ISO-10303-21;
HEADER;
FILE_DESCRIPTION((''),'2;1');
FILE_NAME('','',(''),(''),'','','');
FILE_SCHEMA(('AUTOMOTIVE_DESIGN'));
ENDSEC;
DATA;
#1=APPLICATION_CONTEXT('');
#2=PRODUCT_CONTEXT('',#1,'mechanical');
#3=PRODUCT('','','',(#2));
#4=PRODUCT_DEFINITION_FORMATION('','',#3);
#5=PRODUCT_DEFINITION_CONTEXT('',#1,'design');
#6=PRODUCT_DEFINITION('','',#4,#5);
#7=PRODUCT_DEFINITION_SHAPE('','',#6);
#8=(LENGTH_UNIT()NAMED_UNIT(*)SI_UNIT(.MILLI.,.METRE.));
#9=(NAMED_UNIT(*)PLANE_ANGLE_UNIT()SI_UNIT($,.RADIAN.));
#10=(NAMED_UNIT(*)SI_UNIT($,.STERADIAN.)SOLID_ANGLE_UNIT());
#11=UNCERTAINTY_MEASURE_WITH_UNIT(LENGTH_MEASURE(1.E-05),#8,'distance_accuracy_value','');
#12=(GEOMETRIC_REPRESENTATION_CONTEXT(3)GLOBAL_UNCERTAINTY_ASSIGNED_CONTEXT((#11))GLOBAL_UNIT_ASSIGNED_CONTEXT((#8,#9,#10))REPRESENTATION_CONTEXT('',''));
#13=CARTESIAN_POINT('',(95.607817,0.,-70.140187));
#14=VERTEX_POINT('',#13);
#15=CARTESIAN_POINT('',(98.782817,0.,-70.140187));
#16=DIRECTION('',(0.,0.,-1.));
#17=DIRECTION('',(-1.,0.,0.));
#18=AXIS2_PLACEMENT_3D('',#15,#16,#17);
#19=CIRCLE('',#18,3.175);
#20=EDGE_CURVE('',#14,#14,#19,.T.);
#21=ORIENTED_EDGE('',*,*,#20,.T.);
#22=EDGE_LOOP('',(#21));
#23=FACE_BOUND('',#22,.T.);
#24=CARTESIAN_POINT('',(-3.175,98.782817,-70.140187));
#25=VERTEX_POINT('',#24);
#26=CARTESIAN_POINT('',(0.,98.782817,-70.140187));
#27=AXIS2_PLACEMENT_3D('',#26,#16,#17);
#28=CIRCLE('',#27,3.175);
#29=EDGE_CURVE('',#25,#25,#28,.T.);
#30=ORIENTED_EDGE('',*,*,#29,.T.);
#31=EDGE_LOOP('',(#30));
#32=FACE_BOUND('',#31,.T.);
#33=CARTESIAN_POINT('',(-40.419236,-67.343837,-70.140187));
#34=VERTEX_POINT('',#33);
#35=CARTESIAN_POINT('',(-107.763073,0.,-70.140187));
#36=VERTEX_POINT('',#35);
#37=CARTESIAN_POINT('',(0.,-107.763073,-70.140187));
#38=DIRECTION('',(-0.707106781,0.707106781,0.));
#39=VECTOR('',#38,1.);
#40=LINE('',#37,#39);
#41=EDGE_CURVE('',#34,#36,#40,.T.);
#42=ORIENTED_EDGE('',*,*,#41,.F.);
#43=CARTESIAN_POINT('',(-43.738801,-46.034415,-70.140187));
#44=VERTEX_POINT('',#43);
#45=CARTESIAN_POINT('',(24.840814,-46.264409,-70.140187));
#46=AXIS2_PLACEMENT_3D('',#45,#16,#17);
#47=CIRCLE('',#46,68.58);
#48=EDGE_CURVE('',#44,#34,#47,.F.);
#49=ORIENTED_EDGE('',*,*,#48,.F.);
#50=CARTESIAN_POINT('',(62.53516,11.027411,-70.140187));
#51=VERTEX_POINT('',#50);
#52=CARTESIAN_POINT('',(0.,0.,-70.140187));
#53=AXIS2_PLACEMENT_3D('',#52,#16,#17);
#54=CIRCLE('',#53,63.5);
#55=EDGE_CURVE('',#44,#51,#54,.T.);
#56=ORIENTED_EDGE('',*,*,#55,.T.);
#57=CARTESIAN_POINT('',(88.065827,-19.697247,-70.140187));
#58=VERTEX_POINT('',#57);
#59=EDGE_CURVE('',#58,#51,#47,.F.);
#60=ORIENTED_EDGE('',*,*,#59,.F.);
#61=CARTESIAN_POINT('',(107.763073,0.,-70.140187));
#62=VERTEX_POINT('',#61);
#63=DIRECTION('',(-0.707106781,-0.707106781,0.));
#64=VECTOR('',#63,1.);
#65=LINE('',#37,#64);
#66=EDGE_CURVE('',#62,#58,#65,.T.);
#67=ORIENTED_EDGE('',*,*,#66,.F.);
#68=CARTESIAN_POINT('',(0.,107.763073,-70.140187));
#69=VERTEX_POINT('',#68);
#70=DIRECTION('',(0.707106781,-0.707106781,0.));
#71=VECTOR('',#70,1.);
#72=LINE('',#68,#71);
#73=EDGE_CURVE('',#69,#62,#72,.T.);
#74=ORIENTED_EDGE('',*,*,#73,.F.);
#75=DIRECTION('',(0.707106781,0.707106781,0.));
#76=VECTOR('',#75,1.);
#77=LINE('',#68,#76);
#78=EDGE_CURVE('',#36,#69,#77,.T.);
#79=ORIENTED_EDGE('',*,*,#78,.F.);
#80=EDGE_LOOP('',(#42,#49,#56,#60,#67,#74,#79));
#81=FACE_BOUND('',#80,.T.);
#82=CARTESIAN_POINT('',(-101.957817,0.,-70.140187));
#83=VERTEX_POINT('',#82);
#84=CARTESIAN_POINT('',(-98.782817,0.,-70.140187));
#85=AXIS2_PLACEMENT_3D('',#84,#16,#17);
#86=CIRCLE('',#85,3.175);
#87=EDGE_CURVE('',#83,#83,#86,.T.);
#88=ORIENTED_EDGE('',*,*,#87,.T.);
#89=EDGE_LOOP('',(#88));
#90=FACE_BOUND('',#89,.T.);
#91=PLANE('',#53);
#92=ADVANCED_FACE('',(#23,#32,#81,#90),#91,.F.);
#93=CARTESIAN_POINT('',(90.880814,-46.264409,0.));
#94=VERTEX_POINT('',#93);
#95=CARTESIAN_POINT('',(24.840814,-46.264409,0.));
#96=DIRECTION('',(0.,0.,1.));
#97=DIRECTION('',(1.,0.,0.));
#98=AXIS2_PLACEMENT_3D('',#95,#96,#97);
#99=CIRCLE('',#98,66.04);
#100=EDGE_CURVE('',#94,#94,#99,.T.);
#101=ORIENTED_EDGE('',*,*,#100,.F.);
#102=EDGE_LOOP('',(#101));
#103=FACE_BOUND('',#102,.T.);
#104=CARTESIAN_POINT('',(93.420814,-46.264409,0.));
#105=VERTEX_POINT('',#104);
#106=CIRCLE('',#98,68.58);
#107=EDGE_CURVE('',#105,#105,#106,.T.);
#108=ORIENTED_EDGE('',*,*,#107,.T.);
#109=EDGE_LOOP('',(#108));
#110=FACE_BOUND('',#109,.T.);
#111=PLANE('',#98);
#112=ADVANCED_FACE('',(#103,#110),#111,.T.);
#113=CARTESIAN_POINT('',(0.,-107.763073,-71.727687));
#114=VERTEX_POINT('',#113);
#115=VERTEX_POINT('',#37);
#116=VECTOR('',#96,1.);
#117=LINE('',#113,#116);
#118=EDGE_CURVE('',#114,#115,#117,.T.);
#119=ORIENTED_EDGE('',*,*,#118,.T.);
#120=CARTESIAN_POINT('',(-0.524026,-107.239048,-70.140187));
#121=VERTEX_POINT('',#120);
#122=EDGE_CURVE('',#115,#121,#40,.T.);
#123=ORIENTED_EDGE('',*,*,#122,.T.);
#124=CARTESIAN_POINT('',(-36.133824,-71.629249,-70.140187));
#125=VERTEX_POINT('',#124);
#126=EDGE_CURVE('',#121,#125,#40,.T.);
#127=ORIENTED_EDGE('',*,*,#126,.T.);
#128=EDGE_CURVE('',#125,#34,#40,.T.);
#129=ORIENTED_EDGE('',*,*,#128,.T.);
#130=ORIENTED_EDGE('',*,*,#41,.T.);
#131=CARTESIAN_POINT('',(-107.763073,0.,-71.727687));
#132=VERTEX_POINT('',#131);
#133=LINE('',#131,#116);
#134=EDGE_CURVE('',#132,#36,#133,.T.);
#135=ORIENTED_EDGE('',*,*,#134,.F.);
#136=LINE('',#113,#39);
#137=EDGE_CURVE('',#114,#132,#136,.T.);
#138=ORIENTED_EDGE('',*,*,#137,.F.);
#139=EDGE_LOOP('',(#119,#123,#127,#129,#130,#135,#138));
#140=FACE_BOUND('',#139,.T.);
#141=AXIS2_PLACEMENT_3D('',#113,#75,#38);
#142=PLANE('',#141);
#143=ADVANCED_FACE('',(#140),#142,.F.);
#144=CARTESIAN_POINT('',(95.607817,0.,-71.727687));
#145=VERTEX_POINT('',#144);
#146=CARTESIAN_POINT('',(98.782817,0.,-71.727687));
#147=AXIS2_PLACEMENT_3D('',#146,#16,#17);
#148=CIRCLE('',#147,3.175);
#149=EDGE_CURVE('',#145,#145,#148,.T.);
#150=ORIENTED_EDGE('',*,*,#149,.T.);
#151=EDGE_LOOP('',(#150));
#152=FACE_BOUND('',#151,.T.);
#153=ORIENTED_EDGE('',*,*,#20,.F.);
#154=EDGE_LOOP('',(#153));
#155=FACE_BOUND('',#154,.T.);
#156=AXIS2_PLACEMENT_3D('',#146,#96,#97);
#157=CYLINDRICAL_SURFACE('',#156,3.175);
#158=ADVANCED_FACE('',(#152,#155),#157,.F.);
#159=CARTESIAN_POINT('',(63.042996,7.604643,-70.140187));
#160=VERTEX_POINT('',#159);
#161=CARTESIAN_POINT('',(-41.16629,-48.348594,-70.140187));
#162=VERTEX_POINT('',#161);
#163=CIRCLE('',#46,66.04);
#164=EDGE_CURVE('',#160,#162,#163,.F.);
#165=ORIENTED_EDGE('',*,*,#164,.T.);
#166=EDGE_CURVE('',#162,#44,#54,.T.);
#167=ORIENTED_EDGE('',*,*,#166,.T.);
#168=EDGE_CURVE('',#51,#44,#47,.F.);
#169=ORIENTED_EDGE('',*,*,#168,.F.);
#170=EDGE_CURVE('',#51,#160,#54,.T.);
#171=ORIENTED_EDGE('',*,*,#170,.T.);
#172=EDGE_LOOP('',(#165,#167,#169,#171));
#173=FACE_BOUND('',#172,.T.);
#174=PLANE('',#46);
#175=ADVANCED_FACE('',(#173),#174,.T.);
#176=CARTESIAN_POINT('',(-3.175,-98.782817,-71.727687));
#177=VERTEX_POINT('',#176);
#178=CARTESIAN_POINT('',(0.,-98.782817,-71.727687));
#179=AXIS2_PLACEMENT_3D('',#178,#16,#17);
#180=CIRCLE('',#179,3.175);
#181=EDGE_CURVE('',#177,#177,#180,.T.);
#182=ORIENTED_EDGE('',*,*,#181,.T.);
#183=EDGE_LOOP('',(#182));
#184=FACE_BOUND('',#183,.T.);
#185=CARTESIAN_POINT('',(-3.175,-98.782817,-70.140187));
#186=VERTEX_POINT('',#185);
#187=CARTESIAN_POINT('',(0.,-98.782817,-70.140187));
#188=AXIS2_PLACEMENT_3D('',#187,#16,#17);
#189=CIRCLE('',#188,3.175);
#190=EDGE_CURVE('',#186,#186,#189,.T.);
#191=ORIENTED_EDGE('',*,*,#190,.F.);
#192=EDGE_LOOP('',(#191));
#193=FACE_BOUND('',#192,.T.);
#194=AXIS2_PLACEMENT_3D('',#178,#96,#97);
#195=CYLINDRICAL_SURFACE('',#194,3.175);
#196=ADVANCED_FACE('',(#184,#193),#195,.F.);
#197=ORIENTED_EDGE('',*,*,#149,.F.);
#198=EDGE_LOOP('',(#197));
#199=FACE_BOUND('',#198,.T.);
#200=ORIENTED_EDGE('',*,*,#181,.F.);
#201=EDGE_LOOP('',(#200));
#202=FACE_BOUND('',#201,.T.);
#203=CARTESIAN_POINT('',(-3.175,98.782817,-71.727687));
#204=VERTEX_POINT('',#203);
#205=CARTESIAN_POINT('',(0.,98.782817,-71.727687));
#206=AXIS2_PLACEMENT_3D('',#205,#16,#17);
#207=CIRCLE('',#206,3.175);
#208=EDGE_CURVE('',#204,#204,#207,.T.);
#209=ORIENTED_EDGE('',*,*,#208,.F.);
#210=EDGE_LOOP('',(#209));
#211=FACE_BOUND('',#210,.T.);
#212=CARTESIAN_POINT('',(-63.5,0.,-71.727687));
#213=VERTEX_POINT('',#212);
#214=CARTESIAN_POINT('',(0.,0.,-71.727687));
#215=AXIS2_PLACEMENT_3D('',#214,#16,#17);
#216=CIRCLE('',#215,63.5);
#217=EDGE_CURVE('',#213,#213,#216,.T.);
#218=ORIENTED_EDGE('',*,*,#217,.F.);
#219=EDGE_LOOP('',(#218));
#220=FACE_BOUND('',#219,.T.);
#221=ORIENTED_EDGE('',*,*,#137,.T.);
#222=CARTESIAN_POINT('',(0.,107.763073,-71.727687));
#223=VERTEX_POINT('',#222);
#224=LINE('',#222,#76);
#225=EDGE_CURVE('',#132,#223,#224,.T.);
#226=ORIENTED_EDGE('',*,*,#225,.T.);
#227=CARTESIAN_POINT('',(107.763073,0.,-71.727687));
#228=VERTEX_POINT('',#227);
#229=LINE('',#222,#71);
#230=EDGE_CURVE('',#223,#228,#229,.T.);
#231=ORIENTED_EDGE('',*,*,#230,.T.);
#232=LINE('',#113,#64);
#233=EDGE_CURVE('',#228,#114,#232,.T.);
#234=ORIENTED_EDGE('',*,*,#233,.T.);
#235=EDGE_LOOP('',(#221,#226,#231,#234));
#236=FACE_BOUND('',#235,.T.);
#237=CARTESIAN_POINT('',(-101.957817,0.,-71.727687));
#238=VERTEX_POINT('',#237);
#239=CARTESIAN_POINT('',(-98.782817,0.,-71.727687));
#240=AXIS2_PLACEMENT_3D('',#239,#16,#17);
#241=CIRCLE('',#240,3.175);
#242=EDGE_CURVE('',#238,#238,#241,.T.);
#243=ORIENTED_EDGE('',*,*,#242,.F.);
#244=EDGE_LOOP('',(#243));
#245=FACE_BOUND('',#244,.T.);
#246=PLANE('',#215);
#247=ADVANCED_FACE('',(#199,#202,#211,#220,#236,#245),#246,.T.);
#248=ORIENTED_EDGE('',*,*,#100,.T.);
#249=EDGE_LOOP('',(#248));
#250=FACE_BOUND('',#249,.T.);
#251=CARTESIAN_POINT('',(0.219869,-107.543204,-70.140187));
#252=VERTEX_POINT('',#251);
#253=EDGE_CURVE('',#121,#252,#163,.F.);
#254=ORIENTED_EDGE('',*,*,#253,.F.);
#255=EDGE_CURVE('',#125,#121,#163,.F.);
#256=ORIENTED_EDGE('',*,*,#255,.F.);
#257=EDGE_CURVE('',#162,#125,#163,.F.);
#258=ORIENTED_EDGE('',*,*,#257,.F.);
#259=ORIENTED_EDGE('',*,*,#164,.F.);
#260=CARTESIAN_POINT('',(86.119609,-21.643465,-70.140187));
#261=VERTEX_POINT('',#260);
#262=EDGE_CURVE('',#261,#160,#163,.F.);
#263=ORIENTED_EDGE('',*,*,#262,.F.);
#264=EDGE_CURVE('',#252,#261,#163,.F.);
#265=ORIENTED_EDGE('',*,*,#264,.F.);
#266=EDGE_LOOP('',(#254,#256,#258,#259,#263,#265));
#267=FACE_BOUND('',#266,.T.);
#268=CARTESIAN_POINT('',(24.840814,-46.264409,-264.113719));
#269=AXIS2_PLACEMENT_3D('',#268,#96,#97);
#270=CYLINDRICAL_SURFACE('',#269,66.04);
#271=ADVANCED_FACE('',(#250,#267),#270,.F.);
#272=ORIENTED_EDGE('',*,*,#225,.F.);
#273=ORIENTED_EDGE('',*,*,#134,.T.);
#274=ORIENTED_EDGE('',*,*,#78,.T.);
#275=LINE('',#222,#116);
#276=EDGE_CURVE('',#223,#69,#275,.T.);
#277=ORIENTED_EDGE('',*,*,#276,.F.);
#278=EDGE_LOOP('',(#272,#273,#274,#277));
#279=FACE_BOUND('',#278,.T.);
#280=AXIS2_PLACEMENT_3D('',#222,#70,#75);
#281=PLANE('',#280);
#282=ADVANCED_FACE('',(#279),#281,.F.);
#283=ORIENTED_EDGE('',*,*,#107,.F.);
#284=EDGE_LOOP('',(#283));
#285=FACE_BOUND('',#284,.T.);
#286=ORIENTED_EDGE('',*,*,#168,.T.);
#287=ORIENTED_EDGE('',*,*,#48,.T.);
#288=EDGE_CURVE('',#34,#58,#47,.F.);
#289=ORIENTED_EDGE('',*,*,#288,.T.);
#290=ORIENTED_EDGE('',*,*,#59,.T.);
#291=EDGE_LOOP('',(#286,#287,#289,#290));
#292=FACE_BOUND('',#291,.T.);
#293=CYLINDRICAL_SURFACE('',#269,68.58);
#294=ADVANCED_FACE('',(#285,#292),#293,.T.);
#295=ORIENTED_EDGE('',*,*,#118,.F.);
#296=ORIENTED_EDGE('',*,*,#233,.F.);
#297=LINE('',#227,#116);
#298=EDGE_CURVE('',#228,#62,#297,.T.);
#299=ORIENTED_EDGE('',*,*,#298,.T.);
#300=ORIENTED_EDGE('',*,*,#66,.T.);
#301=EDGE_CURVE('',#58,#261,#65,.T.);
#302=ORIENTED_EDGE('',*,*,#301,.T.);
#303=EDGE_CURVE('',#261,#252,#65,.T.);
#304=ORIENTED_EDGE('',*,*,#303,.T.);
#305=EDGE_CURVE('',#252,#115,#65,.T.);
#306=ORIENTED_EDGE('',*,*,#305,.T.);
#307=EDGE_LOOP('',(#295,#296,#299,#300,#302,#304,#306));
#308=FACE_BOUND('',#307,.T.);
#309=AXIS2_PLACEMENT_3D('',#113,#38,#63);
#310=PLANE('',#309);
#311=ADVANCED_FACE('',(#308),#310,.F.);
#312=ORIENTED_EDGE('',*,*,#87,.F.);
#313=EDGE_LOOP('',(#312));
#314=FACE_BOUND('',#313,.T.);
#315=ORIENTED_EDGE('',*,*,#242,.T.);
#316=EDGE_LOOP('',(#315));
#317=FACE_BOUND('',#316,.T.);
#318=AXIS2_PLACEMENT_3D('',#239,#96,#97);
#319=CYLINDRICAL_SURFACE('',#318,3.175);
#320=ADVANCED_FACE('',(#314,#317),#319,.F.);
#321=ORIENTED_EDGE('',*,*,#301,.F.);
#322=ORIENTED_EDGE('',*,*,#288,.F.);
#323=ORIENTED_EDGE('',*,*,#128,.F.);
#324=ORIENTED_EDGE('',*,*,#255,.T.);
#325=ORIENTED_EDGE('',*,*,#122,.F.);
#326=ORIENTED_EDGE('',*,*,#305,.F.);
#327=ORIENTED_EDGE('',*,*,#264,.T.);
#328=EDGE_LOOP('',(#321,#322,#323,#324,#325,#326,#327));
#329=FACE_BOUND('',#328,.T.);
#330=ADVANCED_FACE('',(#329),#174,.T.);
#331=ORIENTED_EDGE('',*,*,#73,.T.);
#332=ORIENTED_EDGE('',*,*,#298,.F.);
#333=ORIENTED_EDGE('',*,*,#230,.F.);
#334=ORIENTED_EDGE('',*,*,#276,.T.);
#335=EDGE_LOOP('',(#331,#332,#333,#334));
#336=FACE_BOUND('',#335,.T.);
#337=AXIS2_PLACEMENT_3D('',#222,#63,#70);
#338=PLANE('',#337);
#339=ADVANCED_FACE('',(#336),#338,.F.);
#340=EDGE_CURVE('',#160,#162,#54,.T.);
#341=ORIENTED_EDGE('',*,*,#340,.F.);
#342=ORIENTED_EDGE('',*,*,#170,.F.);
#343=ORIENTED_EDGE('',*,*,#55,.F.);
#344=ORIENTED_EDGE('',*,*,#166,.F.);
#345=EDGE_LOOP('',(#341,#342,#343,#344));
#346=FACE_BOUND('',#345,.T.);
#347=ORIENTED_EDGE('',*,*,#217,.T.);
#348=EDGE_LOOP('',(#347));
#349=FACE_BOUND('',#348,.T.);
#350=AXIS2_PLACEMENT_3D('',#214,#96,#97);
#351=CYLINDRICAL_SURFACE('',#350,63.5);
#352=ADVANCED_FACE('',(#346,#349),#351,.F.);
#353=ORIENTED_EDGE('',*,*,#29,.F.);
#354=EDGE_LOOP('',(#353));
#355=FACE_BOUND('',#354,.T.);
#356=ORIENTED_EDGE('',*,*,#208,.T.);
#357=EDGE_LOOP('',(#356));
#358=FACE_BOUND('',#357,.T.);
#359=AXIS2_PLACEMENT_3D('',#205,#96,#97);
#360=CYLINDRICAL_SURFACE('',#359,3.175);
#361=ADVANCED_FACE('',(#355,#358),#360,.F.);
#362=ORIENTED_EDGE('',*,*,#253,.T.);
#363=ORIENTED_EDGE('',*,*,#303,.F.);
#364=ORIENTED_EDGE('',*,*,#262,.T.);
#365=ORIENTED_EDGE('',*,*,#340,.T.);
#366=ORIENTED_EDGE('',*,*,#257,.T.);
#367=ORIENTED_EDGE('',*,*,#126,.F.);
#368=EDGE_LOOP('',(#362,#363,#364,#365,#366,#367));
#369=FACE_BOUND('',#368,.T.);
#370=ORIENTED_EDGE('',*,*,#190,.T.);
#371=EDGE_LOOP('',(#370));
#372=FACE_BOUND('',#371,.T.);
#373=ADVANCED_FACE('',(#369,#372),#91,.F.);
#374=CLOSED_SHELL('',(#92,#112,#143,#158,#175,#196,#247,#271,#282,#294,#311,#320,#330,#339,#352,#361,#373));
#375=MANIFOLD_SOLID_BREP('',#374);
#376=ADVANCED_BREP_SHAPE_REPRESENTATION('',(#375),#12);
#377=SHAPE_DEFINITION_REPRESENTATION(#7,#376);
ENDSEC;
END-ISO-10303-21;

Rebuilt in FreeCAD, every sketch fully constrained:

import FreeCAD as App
import Part
import Sketcher
from FreeCAD import Vector
Q = App.Units.Quantity


def add_polygon(sketch, points):
    """Adds a closed chain of lines whose ends are joined by coincident constraints."""
    first, n = sketch.GeometryCount, len(points)
    for a, b in zip(points, points[1:] + points[:1]):
        sketch.addGeometry(Part.LineSegment(App.Vector(*a, 0), App.Vector(*b, 0)), False)
    for i in range(n):
        sketch.addConstraint(Sketcher.Constraint("Coincident", first + i, 2, first + (i + 1) % n, 1))

doc = App.newDocument("Part")
body = doc.addObject("PartDesign::Body", "Body")

sketch1 = body.newObject("Sketcher::SketchObject", "Sketch")
sketch1.AttachmentSupport = (doc.getObject("XY_Plane"), [""])
sketch1.MapMode = "FlatFace"
sketch1.AttachmentOffset = App.Placement(Vector(0, 0, -70.140187), App.Rotation())
sketch1.addGeometry([
    Part.Circle(Vector(25, -46, 0), Vector(0, 0, 1), 69),
    Part.Circle(Vector(25, -46, 0), Vector(0, 0, 1), 66),
], False)
sketch1.addConstraint([
    Sketcher.Constraint("Coincident", 1, 3, 0, 3),
    Sketcher.Constraint("Diameter", 0, Q("5.4 in")),
    Sketcher.Constraint("Diameter", 1, Q("5.2 in")),
    Sketcher.Constraint("DistanceY", 0, 3, -1, 1, Q("46.264409 mm")),
    Sketcher.Constraint("DistanceX", -1, 1, 0, 3, Q("24.840814 mm")),
])
pad1 = body.newObject("PartDesign::Pad", "Pad")
pad1.Profile = sketch1
pad1.Length = 70.140187

sketch2 = body.newObject("Sketcher::SketchObject", "Sketch001")
sketch2.AttachmentSupport = (doc.getObject("XY_Plane"), [""])
sketch2.MapMode = "FlatFace"
sketch2.AttachmentOffset = App.Placement(Vector(0, 0, -70.140187), App.Rotation())
add_polygon(sketch2, [(0, -107.8), (-107.8, 0), (0, 107.8), (107.8, 0)])
sketch2.addGeometry(Part.Circle(Vector(0, -98.8, 0), Vector(0, 0, 1), 3.2), False)
sketch2.addGeometry(Part.Circle(Vector(98.8, 0, 0), Vector(0, 0, 1), 3.2), False)
sketch2.addGeometry(Part.Circle(Vector(0, 0, 0), Vector(0, 0, 1), 63.5), False)
sketch2.addGeometry(Part.Circle(Vector(-98.8, 0, 0), Vector(0, 0, 1), 3.2), False)
sketch2.addGeometry(Part.Circle(Vector(0, 98.8, 0), Vector(0, 0, 1), 3.2), False)
sketch2.addConstraint([
    Sketcher.Constraint("Coincident", 6, 3, -1, 1),
    Sketcher.Constraint("Equal", 4, 5),
    Sketcher.Constraint("Equal", 5, 7),
    Sketcher.Constraint("Equal", 7, 8),
    Sketcher.Constraint("Symmetric", 5, 3, 7, 3, -1, 1),
    Sketcher.Constraint("Symmetric", 4, 3, 8, 3, -1, 1),
    Sketcher.Constraint("Symmetric", 0, 2, 2, 2, -1, 1),
    Sketcher.Constraint("Symmetric", 1, 2, 3, 2, -1, 1),
    Sketcher.Constraint("PointOnObject", 4, 3, -2),
    Sketcher.Constraint("PointOnObject", 5, 3, -1),
    Sketcher.Constraint("PointOnObject", 0, 2, -1),
    Sketcher.Constraint("PointOnObject", 1, 2, -2),
    Sketcher.Constraint("Perpendicular", 0, 1),
    Sketcher.Constraint("Diameter", 6, Q("5 in")),
    Sketcher.Constraint("Diameter", 4, Q("0.25 in")),
    Sketcher.Constraint("Distance", 0, Q("6 in")),
    Sketcher.Constraint("DistanceX", 0, 2, 5, 3, Q("206.545891 mm")),
    Sketcher.Constraint("DistanceY", 4, 3, -1, 1, Q("98.782817 mm")),
])
pad2 = body.newObject("PartDesign::Pad", "Pad001")
pad2.Profile = sketch2
pad2.Length = Q("0.0625 in")
pad2.Reversed = True

doc.recompute()
